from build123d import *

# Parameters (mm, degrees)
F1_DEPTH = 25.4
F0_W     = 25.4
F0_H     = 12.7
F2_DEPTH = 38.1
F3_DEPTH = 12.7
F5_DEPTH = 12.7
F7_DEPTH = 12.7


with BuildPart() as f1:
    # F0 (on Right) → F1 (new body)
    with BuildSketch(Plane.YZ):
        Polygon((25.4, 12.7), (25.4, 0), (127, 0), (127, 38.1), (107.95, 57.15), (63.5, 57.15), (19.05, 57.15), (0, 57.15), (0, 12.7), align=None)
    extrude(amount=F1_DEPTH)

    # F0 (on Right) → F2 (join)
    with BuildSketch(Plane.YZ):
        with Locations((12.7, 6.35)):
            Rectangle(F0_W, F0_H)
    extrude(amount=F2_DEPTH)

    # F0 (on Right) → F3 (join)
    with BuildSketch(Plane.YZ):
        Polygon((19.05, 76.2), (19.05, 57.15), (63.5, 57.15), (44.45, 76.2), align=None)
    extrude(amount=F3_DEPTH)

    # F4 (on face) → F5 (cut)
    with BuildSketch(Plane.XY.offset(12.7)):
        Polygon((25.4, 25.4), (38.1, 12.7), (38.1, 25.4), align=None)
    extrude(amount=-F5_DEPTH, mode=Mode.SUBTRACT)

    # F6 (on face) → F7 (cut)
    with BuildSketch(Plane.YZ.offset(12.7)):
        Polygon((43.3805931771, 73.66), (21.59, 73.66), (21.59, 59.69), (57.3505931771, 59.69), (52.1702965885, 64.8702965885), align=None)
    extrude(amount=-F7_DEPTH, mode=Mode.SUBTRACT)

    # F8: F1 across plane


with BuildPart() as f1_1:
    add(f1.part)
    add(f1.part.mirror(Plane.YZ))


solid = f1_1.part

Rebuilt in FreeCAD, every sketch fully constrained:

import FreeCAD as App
import Part
import Sketcher
Q = App.Units.Quantity

doc = App.newDocument("Part")
body = doc.addObject("PartDesign::Body", "Body")

# Sketch on YZ plane
sketch1 = doc.addObject("Sketcher::SketchObject", "Sketch")
body.addObject(sketch1)
sketch1.AttachmentSupport = (doc.YZ_Plane, [""])
sketch1.MapMode = "FlatFace"
sketch1.addGeometry([
    Part.LineSegment(App.Vector(25.4, 12.7, 0), App.Vector(25.4, 0, 0)),  # 0
    Part.LineSegment(App.Vector(25.4, 0, 0), App.Vector(127, 0, 0)),  # 1
    Part.LineSegment(App.Vector(127, 0, 0), App.Vector(127, 38.1, 0)),  # 2
    Part.LineSegment(App.Vector(127, 38.1, 0), App.Vector(107.95, 57.15, 0)),  # 3
    Part.LineSegment(App.Vector(107.95, 57.15, 0), App.Vector(0, 57.15, 0)),  # 4
    Part.LineSegment(App.Vector(0, 57.15, 0), App.Vector(0, 12.7, 0)),  # 5
    Part.LineSegment(App.Vector(0, 12.7, 0), App.Vector(25.4, 12.7, 0)),  # 6
], False)
sketch1.addConstraint([
    Sketcher.Constraint("Coincident", 0, 2, 1, 1),
    Sketcher.Constraint("Coincident", 1, 2, 2, 1),
    Sketcher.Constraint("Coincident", 2, 2, 3, 1),
    Sketcher.Constraint("Coincident", 3, 2, 4, 1),
    Sketcher.Constraint("Coincident", 4, 2, 5, 1),
    Sketcher.Constraint("Coincident", 5, 2, 6, 1),
    Sketcher.Constraint("Coincident", 6, 2, 0, 1),
    Sketcher.Constraint("Vertical", 0),
    Sketcher.Constraint("Horizontal", 1),
    Sketcher.Constraint("Vertical", 2),
    Sketcher.Constraint("Horizontal", 4),
    Sketcher.Constraint("Vertical", 5),
    Sketcher.Constraint("Horizontal", 6),
    Sketcher.Constraint("PointOnObject", 0, 2, -1),
    Sketcher.Constraint("PointOnObject", 4, 2, -2),
    Sketcher.Constraint("DistanceX", 1, 1, 1, 2, Q("4 in")),
    Sketcher.Constraint("DistanceX", 6, 1, 6, 2, Q("1 in")),
    Sketcher.Constraint("DistanceY", 0, 2, 0, 1, Q("0.5 in")),
    Sketcher.Constraint("DistanceY", 2, 1, 2, 2, Q("1.5 in")),
    Sketcher.Constraint("Angle", 3, Q("135 deg")),
    Sketcher.Constraint("DistanceX", 4, 2, 4, 1, Q("4.25 in")),
])
pad1 = doc.addObject("PartDesign::Pad", "Pad")
body.addObject(pad1)
pad1.Profile = sketch1
pad1.Length = Q("1 in")

# Sketch on YZ plane
sketch2 = doc.addObject("Sketcher::SketchObject", "Sketch001")
body.addObject(sketch2)
sketch2.AttachmentSupport = (doc.YZ_Plane, [""])
sketch2.MapMode = "FlatFace"
sketch2.addGeometry([
    Part.LineSegment(App.Vector(0, 12.7, 0), App.Vector(0, 0, 0)),
    Part.LineSegment(App.Vector(0, 0, 0), App.Vector(25.4, 0, 0)),
    Part.LineSegment(App.Vector(25.4, 0, 0), App.Vector(25.4, 12.7, 0)),
    Part.LineSegment(App.Vector(25.4, 12.7, 0), App.Vector(0, 12.7, 0)),
], False)
sketch2.addConstraint([
    Sketcher.Constraint("Coincident", 0, 2, 1, 1),
    Sketcher.Constraint("Coincident", 1, 2, 2, 1),
    Sketcher.Constraint("Coincident", 2, 2, 3, 1),
    Sketcher.Constraint("Coincident", 3, 2, 0, 1),
    Sketcher.Constraint("Vertical", 0),
    Sketcher.Constraint("Horizontal", 1),
    Sketcher.Constraint("Vertical", 2),
    Sketcher.Constraint("Horizontal", 3),
    Sketcher.Constraint("Coincident", 0, 2, -1, 1),
    Sketcher.Constraint("DistanceX", 1, 1, 1, 2, Q("1 in")),
    Sketcher.Constraint("DistanceY", 0, 2, 0, 1, Q("0.5 in")),
])
pad2 = doc.addObject("PartDesign::Pad", "Pad001")
body.addObject(pad2)
pad2.Profile = sketch2
pad2.Length = Q("1.5 in")

# Sketch on YZ plane
sketch3 = doc.addObject("Sketcher::SketchObject", "Sketch002")
body.addObject(sketch3)
sketch3.AttachmentSupport = (doc.YZ_Plane, [""])
sketch3.MapMode = "FlatFace"
sketch3.addGeometry([
    Part.LineSegment(App.Vector(19.05, 76.2, 0), App.Vector(19.05, 57.15, 0)),
    Part.LineSegment(App.Vector(19.05, 57.15, 0), App.Vector(63.5, 57.15, 0)),
    Part.LineSegment(App.Vector(63.5, 57.15, 0), App.Vector(44.45, 76.2, 0)),
    Part.LineSegment(App.Vector(44.45, 76.2, 0), App.Vector(19.05, 76.2, 0)),
], False)
sketch3.addConstraint([
    Sketcher.Constraint("Coincident", 0, 2, 1, 1),
    Sketcher.Constraint("Coincident", 1, 2, 2, 1),
    Sketcher.Constraint("Coincident", 2, 2, 3, 1),
    Sketcher.Constraint("Coincident", 3, 2, 0, 1),
    Sketcher.Constraint("Vertical", 0),
    Sketcher.Constraint("Horizontal", 1),
    Sketcher.Constraint("Horizontal", 3),
    Sketcher.Constraint("DistanceX", 3, 2, 3, 1, Q("1 in")),
    Sketcher.Constraint("DistanceY", -1, 1, 2, 2, Q("3 in")),
    Sketcher.Constraint("Angle", 2, Q("135 deg")),
    Sketcher.Constraint("DistanceX", 1, 1, 1, 2, Q("1.75 in")),
    Sketcher.Constraint("DistanceX", -1, 1, 1, 2, Q("2.5 in")),
])
pad3 = doc.addObject("PartDesign::Pad", "Pad002")
body.addObject(pad3)
pad3.Profile = sketch3
pad3.Length = Q("0.5 in")

# Sketch on XY plane
sketch4 = doc.addObject("Sketcher::SketchObject", "Sketch003")
body.addObject(sketch4)
sketch4.AttachmentSupport = (doc.XY_Plane, [""])
sketch4.MapMode = "FlatFace"
sketch4.AttachmentOffset = App.Placement(App.Vector(0, 0, 0.5 * 25.4), App.Rotation())
sketch4.addGeometry([
    Part.LineSegment(App.Vector(25.4, 25.4, 0), App.Vector(38.1, 12.7, 0)),
    Part.LineSegment(App.Vector(38.1, 12.7, 0), App.Vector(38.1, 25.4, 0)),
    Part.LineSegment(App.Vector(38.1, 25.4, 0), App.Vector(25.4, 25.4, 0)),
], False)
sketch4.addConstraint([
    Sketcher.Constraint("Coincident", 0, 2, 1, 1),
    Sketcher.Constraint("Coincident", 1, 2, 2, 1),
    Sketcher.Constraint("Coincident", 2, 2, 0, 1),
    Sketcher.Constraint("Vertical", 1),
    Sketcher.Constraint("Horizontal", 2),
    Sketcher.Constraint("Equal", 2, 1),
    Sketcher.Constraint("DistanceX", 2, 2, 2, 1, Q("0.5 in")),
    Sketcher.Constraint("DistanceY", -1, 1, 1, 2, Q("1 in")),
    Sketcher.Constraint("DistanceX", -1, 1, 2, 2, Q("1 in")),
])
pocket1 = doc.addObject("PartDesign::Pocket", "Pocket")
body.addObject(pocket1)
pocket1.Profile = sketch4
pocket1.Length = Q("0.5 in")

# Sketch on YZ plane
sketch5 = doc.addObject("Sketcher::SketchObject", "Sketch004")
body.addObject(sketch5)
sketch5.AttachmentSupport = (doc.YZ_Plane, [""])
sketch5.MapMode = "FlatFace"
sketch5.AttachmentOffset = App.Placement(App.Vector(0, 0, 0.5 * 25.4), App.Rotation())
sketch5.addGeometry([
    Part.LineSegment(App.Vector(43.380593, 73.66, 0), App.Vector(21.59, 73.66, 0)),  # 0
    Part.LineSegment(App.Vector(21.59, 73.66, 0), App.Vector(21.59, 59.69, 0)),  # 1
    Part.LineSegment(App.Vector(21.59, 59.69, 0), App.Vector(57.350593, 59.69, 0)),  # 2
    Part.LineSegment(App.Vector(57.350593, 59.69, 0), App.Vector(52.170297, 64.870297, 0)),  # 3
    Part.LineSegment(App.Vector(52.170297, 64.870297, 0), App.Vector(43.380593, 73.66, 0)),  # 4
], False)
sketch5.addConstraint([
    Sketcher.Constraint("Coincident", 0, 2, 1, 1),
    Sketcher.Constraint("Coincident", 1, 2, 2, 1),
    Sketcher.Constraint("Coincident", 2, 2, 3, 1),
    Sketcher.Constraint("Coincident", 3, 2, 4, 1),
    Sketcher.Constraint("Coincident", 4, 2, 0, 1),
    Sketcher.Constraint("Horizontal", 0),
    Sketcher.Constraint("Vertical", 1),
    Sketcher.Constraint("Horizontal", 2),
    Sketcher.Constraint("Parallel", 3, 4),
    Sketcher.Constraint("Angle", 3, Q("135 deg")),
    Sketcher.Constraint("DistanceY", 1, 2, 1, 1, Q("0.55 in")),
    Sketcher.Constraint("DistanceY", -1, 1, 0, 2, Q("2.9 in")),
    Sketcher.Constraint("DistanceX", -1, 1, 0, 2, Q("0.85 in")),
    Sketcher.Constraint("DistanceX", 0, 2, 0, 1, Q("21.790593 mm")),
    Sketcher.Constraint("Distance", 3, Q("7.326046 mm")),
])
pocket2 = doc.addObject("PartDesign::Pocket", "Pocket001")
body.addObject(pocket2)
pocket2.Profile = sketch5
pocket2.Length = Q("0.5 in")
body2 = doc.addObject("PartDesign::Body", "Body001")
doc.recompute()

body2.BaseFeature = body
doc.recompute()

mirroring = doc.addObject("Part::Mirroring", "Mirroring")
mirroring.Source = body
mirroring.Base = App.Vector(0, 0, 0)
mirroring.Normal = App.Vector(1, 0, 0)
body3 = doc.addObject("PartDesign::Body", "Body002")
body3.BaseFeature = mirroring
boolean = doc.addObject("PartDesign::Boolean", "Boolean")
body2.addObject(boolean)
boolean.Type = "Fuse"
boolean.addObjects([body3])
doc.recompute()
mirroring.Visibility = False

doc.recompute()
